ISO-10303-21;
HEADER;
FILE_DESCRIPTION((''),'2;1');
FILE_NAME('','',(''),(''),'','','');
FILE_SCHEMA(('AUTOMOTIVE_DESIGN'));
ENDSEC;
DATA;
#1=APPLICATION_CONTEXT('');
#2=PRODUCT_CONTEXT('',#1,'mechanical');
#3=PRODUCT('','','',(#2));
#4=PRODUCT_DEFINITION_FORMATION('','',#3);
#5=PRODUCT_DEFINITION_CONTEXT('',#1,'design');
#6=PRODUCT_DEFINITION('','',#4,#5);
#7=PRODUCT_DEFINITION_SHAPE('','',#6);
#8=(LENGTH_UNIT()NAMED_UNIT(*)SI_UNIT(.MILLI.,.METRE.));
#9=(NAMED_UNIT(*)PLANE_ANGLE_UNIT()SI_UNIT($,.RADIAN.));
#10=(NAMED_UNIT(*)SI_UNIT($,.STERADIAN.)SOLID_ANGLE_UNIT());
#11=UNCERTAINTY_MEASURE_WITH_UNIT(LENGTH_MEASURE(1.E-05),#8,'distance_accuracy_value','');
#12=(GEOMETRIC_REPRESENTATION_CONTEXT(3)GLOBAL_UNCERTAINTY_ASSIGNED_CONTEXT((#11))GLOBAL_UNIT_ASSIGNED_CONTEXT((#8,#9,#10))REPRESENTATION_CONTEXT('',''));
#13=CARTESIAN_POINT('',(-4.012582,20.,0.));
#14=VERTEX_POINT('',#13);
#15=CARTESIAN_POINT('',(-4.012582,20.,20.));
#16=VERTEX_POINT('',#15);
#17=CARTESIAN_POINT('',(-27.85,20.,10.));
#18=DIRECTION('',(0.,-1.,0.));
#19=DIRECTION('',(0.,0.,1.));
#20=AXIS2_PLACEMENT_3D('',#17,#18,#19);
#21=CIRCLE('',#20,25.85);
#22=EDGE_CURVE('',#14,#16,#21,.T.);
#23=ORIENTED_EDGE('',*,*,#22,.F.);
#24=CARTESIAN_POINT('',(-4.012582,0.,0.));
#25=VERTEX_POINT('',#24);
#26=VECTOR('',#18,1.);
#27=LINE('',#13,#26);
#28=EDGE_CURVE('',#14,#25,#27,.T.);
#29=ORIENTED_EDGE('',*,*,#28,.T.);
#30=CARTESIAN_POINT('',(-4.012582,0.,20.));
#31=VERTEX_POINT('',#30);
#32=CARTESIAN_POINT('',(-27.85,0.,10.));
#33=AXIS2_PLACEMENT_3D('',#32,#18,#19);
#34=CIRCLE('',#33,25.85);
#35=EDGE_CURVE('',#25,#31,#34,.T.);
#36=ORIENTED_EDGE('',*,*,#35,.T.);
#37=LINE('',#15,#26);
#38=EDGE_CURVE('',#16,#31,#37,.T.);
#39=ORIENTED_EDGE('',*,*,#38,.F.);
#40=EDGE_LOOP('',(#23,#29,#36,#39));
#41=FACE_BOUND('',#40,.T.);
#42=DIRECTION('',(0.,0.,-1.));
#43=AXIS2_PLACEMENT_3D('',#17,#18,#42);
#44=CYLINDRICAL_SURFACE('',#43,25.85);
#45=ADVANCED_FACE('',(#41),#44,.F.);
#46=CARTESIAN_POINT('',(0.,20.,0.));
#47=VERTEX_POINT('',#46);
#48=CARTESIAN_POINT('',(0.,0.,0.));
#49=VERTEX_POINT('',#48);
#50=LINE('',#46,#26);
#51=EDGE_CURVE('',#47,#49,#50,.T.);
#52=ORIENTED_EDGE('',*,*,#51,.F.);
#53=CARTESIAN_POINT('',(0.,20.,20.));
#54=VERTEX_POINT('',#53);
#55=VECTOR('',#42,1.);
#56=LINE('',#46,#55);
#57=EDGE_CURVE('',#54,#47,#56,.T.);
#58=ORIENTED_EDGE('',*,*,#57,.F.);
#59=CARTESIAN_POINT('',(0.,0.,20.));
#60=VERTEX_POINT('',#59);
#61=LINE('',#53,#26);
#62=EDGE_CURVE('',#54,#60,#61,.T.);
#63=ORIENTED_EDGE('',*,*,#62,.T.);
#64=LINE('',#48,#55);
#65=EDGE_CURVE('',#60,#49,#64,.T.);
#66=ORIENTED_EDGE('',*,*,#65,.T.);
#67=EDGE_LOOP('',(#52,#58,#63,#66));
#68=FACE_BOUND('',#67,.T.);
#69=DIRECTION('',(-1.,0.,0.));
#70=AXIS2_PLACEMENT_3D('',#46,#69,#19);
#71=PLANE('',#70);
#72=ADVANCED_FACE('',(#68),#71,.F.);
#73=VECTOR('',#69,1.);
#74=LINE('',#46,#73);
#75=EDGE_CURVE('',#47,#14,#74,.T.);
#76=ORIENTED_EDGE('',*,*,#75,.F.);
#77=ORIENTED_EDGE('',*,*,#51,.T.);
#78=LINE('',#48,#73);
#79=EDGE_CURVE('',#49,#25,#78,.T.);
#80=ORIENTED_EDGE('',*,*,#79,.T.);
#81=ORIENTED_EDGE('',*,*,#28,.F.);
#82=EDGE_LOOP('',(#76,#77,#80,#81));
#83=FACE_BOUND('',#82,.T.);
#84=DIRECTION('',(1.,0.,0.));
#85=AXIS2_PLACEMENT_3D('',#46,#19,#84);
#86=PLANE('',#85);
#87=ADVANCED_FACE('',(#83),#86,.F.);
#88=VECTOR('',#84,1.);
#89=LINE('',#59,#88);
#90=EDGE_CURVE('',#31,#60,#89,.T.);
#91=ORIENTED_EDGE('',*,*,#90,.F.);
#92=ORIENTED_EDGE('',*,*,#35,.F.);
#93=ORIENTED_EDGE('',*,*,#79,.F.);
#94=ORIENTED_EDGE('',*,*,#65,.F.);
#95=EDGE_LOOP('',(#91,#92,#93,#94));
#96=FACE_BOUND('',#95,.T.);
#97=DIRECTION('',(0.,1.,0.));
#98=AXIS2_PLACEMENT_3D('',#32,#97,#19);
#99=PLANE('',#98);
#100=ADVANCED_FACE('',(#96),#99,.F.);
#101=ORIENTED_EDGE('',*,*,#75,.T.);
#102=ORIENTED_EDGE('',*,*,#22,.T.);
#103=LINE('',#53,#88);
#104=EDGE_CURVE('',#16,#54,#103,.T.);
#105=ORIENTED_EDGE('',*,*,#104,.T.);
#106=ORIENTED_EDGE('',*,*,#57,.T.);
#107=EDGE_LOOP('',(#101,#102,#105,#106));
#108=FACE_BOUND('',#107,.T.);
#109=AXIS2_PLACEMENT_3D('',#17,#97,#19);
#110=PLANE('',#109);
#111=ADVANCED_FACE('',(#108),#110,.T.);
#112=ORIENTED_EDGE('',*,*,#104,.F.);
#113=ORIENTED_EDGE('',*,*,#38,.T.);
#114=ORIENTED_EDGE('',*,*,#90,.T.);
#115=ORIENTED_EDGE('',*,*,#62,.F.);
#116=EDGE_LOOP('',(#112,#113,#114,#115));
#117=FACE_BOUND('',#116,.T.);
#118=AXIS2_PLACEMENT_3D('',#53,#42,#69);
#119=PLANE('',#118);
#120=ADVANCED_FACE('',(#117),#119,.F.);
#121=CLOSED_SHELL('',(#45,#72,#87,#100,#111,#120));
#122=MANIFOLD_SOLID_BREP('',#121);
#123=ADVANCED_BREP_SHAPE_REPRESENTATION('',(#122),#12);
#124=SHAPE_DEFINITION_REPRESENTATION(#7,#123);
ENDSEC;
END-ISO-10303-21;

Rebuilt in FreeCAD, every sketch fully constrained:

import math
import FreeCAD as App
import Part
import Sketcher

doc = App.newDocument("Part")
body = doc.addObject("PartDesign::Body", "Body")

# Sketch on XZ plane
sketch1 = doc.addObject("Sketcher::SketchObject", "Sketch")
body.addObject(sketch1)
sketch1.AttachmentSupport = (doc.XZ_Plane, [""])
sketch1.MapMode = "FlatFace"
sketch1.addGeometry([
    Part.LineSegment(App.Vector(0, 20, 0), App.Vector(0, 0, 0)),
    Part.LineSegment(App.Vector(0, 0, 0), App.Vector(-4.012582, 0, 0)),
    Part.ArcOfCircle(Part.Circle(App.Vector(-27.85, 10, 0), App.Vector(0, 0, 1), 25.85), math.radians(-22.758464), math.radians(22.758464)),
    Part.LineSegment(App.Vector(-4.012582, 20, 0), App.Vector(0, 20, 0)),
], False)
sketch1.addConstraint([
    Sketcher.Constraint("Coincident", 0, 2, 1, 1),
    Sketcher.Constraint("Coincident", 1, 2, 2, 1),
    Sketcher.Constraint("Coincident", 2, 2, 3, 1),
    Sketcher.Constraint("Coincident", 3, 2, 0, 1),
    Sketcher.Constraint("Vertical", 0),
    Sketcher.Constraint("Horizontal", 1),
    Sketcher.Constraint("Horizontal", 3),
    Sketcher.Constraint("Coincident", 0, 2, -1, 1),
    Sketcher.Constraint("Vertical", 1, 2, 2, 2),
    Sketcher.Constraint("DistanceY", 0, 2, 0, 1, 20.0),
    Sketcher.Constraint("Radius", 2, 25.85),
    Sketcher.Constraint("DistanceX", 2, 3, -1, 1, 27.85),
])
pad1 = doc.addObject("PartDesign::Pad", "Pad")
body.addObject(pad1)
pad1.Profile = sketch1
pad1.Length = 20
pad1.Reversed = True

doc.recompute()
